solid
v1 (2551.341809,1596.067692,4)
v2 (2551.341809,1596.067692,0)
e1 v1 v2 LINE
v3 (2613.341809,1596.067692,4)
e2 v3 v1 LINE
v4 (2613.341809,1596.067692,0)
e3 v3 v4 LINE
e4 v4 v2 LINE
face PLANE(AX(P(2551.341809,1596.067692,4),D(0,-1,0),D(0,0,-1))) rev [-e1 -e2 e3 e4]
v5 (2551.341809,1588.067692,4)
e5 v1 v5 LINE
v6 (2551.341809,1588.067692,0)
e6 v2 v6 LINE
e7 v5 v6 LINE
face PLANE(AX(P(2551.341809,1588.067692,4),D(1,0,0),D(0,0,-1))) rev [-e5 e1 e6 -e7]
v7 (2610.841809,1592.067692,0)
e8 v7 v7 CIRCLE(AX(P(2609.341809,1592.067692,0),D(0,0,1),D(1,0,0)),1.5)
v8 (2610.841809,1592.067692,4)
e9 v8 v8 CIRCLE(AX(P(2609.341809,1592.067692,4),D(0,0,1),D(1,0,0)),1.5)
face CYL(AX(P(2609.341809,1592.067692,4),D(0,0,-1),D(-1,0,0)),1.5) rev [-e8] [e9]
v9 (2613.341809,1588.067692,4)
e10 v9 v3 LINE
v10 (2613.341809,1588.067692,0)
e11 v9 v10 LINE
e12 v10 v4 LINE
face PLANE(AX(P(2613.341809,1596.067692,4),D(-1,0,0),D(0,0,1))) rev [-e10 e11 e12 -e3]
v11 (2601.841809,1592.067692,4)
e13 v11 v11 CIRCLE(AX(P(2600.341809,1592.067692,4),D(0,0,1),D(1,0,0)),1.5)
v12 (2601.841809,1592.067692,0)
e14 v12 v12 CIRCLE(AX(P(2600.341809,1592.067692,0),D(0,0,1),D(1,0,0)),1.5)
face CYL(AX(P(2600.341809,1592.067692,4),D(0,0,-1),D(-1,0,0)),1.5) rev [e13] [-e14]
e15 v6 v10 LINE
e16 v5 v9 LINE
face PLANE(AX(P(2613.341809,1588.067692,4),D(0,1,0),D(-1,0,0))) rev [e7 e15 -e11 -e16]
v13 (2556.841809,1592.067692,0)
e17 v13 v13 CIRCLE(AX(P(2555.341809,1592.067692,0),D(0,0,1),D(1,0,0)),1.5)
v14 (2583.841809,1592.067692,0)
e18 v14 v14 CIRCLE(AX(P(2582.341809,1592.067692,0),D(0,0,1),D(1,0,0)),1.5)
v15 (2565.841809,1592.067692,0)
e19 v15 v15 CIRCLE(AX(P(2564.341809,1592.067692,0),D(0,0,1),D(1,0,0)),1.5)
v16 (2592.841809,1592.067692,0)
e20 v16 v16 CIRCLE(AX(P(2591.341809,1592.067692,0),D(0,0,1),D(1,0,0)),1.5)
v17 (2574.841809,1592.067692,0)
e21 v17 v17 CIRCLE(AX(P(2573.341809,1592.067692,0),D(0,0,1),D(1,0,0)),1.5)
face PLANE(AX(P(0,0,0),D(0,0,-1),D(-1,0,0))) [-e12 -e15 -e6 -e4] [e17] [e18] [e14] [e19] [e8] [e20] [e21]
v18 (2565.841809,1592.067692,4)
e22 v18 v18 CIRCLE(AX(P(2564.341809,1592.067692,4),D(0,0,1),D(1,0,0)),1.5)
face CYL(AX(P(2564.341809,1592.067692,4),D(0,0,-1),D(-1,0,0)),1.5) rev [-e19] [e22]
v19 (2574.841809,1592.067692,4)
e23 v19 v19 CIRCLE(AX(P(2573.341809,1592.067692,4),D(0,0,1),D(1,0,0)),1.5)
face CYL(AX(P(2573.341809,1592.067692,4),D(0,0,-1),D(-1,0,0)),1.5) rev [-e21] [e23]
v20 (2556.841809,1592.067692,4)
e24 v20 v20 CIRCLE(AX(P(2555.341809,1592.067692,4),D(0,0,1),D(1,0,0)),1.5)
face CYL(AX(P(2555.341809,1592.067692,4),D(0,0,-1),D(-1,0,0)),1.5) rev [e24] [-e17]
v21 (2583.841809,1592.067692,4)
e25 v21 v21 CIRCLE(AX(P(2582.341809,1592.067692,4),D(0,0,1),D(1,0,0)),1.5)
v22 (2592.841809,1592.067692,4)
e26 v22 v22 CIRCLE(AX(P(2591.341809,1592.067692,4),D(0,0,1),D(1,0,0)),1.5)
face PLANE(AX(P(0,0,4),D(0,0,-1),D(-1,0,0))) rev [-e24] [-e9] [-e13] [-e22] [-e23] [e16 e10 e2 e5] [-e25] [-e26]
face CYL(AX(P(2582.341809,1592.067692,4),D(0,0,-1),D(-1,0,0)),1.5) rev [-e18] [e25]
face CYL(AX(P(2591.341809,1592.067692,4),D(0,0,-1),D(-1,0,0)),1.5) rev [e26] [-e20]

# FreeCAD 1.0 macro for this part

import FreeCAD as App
import Part
import Sketcher
from FreeCAD import Vector

doc = App.newDocument("Part")
body = doc.addObject("PartDesign::Body", "Body")

# Sketch on XY plane
sketch1 = body.newObject("Sketcher::SketchObject", "Sketch")
sketch1.AttachmentSupport = (doc.getObject("XY_Plane"), [""])
sketch1.MapMode = "FlatFace"
sketch1.addGeometry([
    Part.LineSegment(Vector(2551.341809, 1596.067692, 0), Vector(2551.341809, 1588.067692, 0)),  # 0
    Part.LineSegment(Vector(2551.341809, 1588.067692, 0), Vector(2613.341809, 1588.067692, 0)),  # 1
    Part.LineSegment(Vector(2613.341809, 1588.067692, 0), Vector(2613.341809, 1596.067692, 0)),  # 2
    Part.LineSegment(Vector(2613.341809, 1596.067692, 0), Vector(2551.341809, 1596.067692, 0)),  # 3
    Part.Circle(Vector(2555.341809, 1592.067692, 0), Vector(0, 0, 1), 1.5),  # 4
    Part.Circle(Vector(2564.341809, 1592.067692, 0), Vector(0, 0, 1), 1.5),  # 5
    Part.Circle(Vector(2573.341809, 1592.067692, 0), Vector(0, 0, 1), 1.5),  # 6
    Part.Circle(Vector(2582.341809, 1592.067692, 0), Vector(0, 0, 1), 1.5),  # 7
    Part.Circle(Vector(2591.341809, 1592.067692, 0), Vector(0, 0, 1), 1.5),  # 8
    Part.Circle(Vector(2600.341809, 1592.067692, 0), Vector(0, 0, 1), 1.5),  # 9
    Part.Circle(Vector(2609.341809, 1592.067692, 0), Vector(0, 0, 1), 1.5),  # 10
], False)
sketch1.addConstraint([
    Sketcher.Constraint("Coincident", 0, 2, 1, 1),
    Sketcher.Constraint("Coincident", 1, 2, 2, 1),
    Sketcher.Constraint("Coincident", 2, 2, 3, 1),
    Sketcher.Constraint("Coincident", 3, 2, 0, 1),
    Sketcher.Constraint("Vertical", 0),
    Sketcher.Constraint("Horizontal", 1),
    Sketcher.Constraint("Vertical", 2),
    Sketcher.Constraint("Horizontal", 3),
    Sketcher.Constraint("Equal", 4, 5),
    Sketcher.Constraint("Equal", 5, 6),
    Sketcher.Constraint("Equal", 6, 7),
    Sketcher.Constraint("Equal", 7, 8),
    Sketcher.Constraint("Equal", 8, 9),
    Sketcher.Constraint("Equal", 9, 10),
    Sketcher.Constraint("Horizontal", 4, 3, 5, 3),
    Sketcher.Constraint("Horizontal", 5, 3, 6, 3),
    Sketcher.Constraint("Horizontal", 6, 3, 7, 3),
    Sketcher.Constraint("Horizontal", 7, 3, 8, 3),
    Sketcher.Constraint("Horizontal", 8, 3, 9, 3),
    Sketcher.Constraint("Horizontal", 9, 3, 10, 3),
    Sketcher.Constraint("Diameter", 4, 3.0),
    Sketcher.Constraint("DistanceX", 1, 1, 1, 2, 62.0),
    Sketcher.Constraint("DistanceY", 0, 2, 0, 1, 8.0),
    Sketcher.Constraint("DistanceX", 4, 3, 5, 3, 9.0),
    Sketcher.Constraint("DistanceX", 5, 3, 6, 3, 9.0),
    Sketcher.Constraint("DistanceX", 6, 3, 7, 3, 9.0),
    Sketcher.Constraint("DistanceX", 7, 3, 8, 3, 9.0),
    Sketcher.Constraint("DistanceX", 8, 3, 9, 3, 9.0),
    Sketcher.Constraint("DistanceX", 9, 3, 10, 3, 9.0),
    Sketcher.Constraint("DistanceX", 0, 2, 4, 3, 4.0),
    Sketcher.Constraint("DistanceY", 0, 2, 4, 3, 4.0),
    Sketcher.Constraint("DistanceX", -1, 1, 4, 3, 2555.341809),
    Sketcher.Constraint("DistanceY", -1, 1, 4, 3, 1592.067692),
])
pad1 = body.newObject("PartDesign::Pad", "Pad")
pad1.Profile = sketch1
pad1.Length = 4

doc.recompute()
